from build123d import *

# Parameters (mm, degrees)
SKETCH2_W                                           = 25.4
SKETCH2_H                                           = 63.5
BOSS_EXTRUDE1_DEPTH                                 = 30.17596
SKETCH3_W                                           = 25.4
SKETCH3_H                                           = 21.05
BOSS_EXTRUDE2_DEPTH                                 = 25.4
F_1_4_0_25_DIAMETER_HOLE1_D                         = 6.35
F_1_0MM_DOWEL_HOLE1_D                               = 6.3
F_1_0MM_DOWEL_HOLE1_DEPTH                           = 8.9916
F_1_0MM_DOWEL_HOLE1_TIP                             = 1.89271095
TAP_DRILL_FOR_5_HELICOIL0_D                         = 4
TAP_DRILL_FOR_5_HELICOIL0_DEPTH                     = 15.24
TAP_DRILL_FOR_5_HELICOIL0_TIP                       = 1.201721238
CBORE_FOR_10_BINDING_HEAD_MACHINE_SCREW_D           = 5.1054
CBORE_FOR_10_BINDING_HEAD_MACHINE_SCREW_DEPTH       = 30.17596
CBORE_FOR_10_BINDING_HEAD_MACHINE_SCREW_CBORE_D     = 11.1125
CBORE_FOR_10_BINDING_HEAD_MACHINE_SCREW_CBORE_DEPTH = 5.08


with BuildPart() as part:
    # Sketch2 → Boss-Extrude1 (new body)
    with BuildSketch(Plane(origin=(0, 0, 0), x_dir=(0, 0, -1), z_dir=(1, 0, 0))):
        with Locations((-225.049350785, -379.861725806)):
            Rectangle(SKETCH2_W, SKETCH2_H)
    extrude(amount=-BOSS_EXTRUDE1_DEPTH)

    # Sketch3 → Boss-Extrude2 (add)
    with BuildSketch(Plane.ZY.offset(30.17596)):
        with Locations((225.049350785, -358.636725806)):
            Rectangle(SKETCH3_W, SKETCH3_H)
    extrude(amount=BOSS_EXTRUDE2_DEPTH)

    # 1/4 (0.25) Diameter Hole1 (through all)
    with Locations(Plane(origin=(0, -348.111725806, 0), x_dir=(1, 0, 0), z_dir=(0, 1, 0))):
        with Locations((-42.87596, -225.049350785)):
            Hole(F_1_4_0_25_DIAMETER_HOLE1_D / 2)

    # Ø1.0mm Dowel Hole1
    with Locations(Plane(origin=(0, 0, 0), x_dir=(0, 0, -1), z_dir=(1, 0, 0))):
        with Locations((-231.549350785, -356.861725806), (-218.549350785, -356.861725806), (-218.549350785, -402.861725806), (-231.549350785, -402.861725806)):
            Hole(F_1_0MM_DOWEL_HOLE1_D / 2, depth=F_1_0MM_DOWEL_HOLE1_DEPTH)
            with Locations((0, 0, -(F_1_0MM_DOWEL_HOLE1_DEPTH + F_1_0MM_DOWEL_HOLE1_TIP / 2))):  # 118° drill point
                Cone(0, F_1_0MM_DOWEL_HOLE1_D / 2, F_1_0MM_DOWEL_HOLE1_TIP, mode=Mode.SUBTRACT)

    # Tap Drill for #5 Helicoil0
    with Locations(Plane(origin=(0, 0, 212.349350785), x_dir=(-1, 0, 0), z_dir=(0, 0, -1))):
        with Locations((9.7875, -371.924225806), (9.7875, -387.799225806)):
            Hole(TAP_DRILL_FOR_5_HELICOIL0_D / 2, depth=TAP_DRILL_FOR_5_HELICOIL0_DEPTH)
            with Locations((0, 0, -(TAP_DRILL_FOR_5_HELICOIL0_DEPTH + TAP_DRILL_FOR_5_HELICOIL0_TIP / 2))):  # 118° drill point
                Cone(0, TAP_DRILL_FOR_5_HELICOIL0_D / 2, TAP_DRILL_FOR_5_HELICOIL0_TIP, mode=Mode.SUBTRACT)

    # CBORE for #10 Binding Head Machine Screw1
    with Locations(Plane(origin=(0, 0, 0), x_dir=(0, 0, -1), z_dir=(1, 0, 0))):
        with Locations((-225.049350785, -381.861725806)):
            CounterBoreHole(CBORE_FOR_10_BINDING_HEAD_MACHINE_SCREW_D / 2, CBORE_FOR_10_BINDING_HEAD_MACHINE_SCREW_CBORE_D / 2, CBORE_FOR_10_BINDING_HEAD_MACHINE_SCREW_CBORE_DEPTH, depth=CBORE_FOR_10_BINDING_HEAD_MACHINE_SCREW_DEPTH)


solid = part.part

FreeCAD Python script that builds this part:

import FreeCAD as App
import Part
import Sketcher
Q = App.Units.Quantity


def add_polygon(sketch, points):
    """Adds a closed chain of lines whose ends are joined by coincident constraints."""
    first, n = sketch.GeometryCount, len(points)
    for a, b in zip(points, points[1:] + points[:1]):
        sketch.addGeometry(Part.LineSegment(App.Vector(*a, 0), App.Vector(*b, 0)), False)
    for i in range(n):
        sketch.addConstraint(Sketcher.Constraint("Coincident", first + i, 2, first + (i + 1) % n, 1))

doc = App.newDocument("Part")
body = doc.addObject("PartDesign::Body", "Body")

# Sketch on YZ plane
sketch1 = body.newObject("Sketcher::SketchObject", "Sketch")
sketch1.AttachmentSupport = (doc.getObject("YZ_Plane"), [""])
sketch1.MapMode = "FlatFace"
add_polygon(sketch1, [(-348, 238), (-412, 238), (-412, 212), (-348, 212)])  # lines 0-3
sketch1.addConstraint(Sketcher.Constraint("Horizontal", 0))
sketch1.addConstraint(Sketcher.Constraint("Vertical", 1))
sketch1.addConstraint(Sketcher.Constraint("Horizontal", 2))
sketch1.addConstraint(Sketcher.Constraint("Vertical", 3))
sketch1.addConstraint(Sketcher.Constraint("DistanceY", 1, 2, 1, 1, Q("1 in")))
sketch1.addConstraint(Sketcher.Constraint("DistanceX", 0, 2, 0, 1, Q("2.5 in")))
sketch1.addConstraint(Sketcher.Constraint("DistanceY", -1, 1, 0, 2, Q("237.749351 mm")))
sketch1.addConstraint(Sketcher.Constraint("DistanceX", 0, 2, -1, 1, Q("411.611726 mm")))
pad1 = body.newObject("PartDesign::Pad", "Pad")
pad1.Profile = sketch1
pad1.Length = 30.17596
pad1.Reversed = True

# Sketch on YZ plane
sketch2 = body.newObject("Sketcher::SketchObject", "Sketch001")
sketch2.AttachmentSupport = (doc.getObject("YZ_Plane"), [""])
sketch2.MapMode = "FlatFace"
sketch2.AttachmentOffset = App.Placement(App.Vector(0, 0, -30.17596), App.Rotation())
add_polygon(sketch2, [(-348, 212), (-369, 212), (-369, 238), (-348, 238)])  # lines 0-3
sketch2.addConstraint(Sketcher.Constraint("Horizontal", 0))
sketch2.addConstraint(Sketcher.Constraint("Vertical", 1))
sketch2.addConstraint(Sketcher.Constraint("Horizontal", 2))
sketch2.addConstraint(Sketcher.Constraint("Vertical", 3))
sketch2.addConstraint(Sketcher.Constraint("DistanceY", 1, 1, 1, 2, Q("1 in")))
sketch2.addConstraint(Sketcher.Constraint("DistanceX", 0, 2, 0, 1, Q("21.05 mm")))
sketch2.addConstraint(Sketcher.Constraint("DistanceY", -1, 1, 0, 2, Q("212.349351 mm")))
sketch2.addConstraint(Sketcher.Constraint("DistanceX", 0, 2, -1, 1, Q("369.161726 mm")))
pad2 = body.newObject("PartDesign::Pad", "Pad001")
pad2.Profile = sketch2
pad2.Length = Q("1 in")
pad2.Reversed = True

# Sketch on XZ plane
sketch3 = body.newObject("Sketcher::SketchObject", "Sketch002")
sketch3.AttachmentSupport = (doc.getObject("XZ_Plane"), [""])
sketch3.MapMode = "FlatFace"
sketch3.AttachmentOffset = App.Placement(App.Vector(0, 0, 348.111726), App.Rotation())
sketch3.addGeometry(Part.Circle(App.Vector(-42.9, 225, 0), App.Vector(0, 0, 1), 3.2), False)
sketch3.addConstraint(Sketcher.Constraint("Diameter", 0, Q("0.25 in")))
sketch3.addConstraint(Sketcher.Constraint("DistanceX", 0, 3, -1, 1, Q("42.87596 mm")))
sketch3.addConstraint(Sketcher.Constraint("DistanceY", -1, 1, 0, 3, Q("225.049351 mm")))
doc.recompute()
hole = body.newObject("PartDesign::Hole", "Hole")
hole.Profile = sketch3
hole.ThreadType = "None"
hole.Diameter = Q("0.25 in")
hole.DepthType = "ThroughAll"
hole.Reversed = True

# Sketch on YZ plane
sketch4 = body.newObject("Sketcher::SketchObject", "Sketch003")
sketch4.AttachmentSupport = (doc.getObject("YZ_Plane"), [""])
sketch4.MapMode = "FlatFace"
sketch4.addGeometry(Part.Circle(App.Vector(-356.9, 231.5, 0), App.Vector(0, 0, 1), 3.1), False)
sketch4.addGeometry(Part.Circle(App.Vector(-356.9, 218.5, 0), App.Vector(0, 0, 1), 3.1), False)
sketch4.addGeometry(Part.Circle(App.Vector(-402.9, 218.5, 0), App.Vector(0, 0, 1), 3.1), False)
sketch4.addGeometry(Part.Circle(App.Vector(-402.9, 231.5, 0), App.Vector(0, 0, 1), 3.1), False)
sketch4.addConstraint(Sketcher.Constraint("Equal", 0, 1))
sketch4.addConstraint(Sketcher.Constraint("Equal", 1, 2))
sketch4.addConstraint(Sketcher.Constraint("Equal", 2, 3))
sketch4.addConstraint(Sketcher.Constraint("Horizontal", 1, 3, 2, 3))
sketch4.addConstraint(Sketcher.Constraint("Horizontal", 0, 3, 3, 3))
sketch4.addConstraint(Sketcher.Constraint("Vertical", 0, 3, 1, 3))
sketch4.addConstraint(Sketcher.Constraint("Vertical", 2, 3, 3, 3))
sketch4.addConstraint(Sketcher.Constraint("Diameter", 0, Q("6.3 mm")))
sketch4.addConstraint(Sketcher.Constraint("DistanceY", 1, 3, 0, 3, Q("13 mm")))
sketch4.addConstraint(Sketcher.Constraint("DistanceX", 2, 3, 1, 3, Q("46 mm")))
sketch4.addConstraint(Sketcher.Constraint("DistanceY", -1, 1, 0, 3, Q("231.549351 mm")))
sketch4.addConstraint(Sketcher.Constraint("DistanceX", 0, 3, -1, 1, Q("356.861726 mm")))
doc.recompute()
hole2 = body.newObject("PartDesign::Hole", "Hole001")
hole2.Profile = sketch4
hole2.ThreadType = "None"
hole2.Diameter = 6.3
hole2.DepthType = "Dimension"
hole2.Depth = Q("0.354 in")
hole2.DrillPoint = "Angled"
hole2.DrillPointAngle = 118

# Sketch on XY plane
sketch5 = body.newObject("Sketcher::SketchObject", "Sketch004")
sketch5.AttachmentSupport = (doc.getObject("XY_Plane"), [""])
sketch5.MapMode = "FlatFace"
sketch5.AttachmentOffset = App.Placement(App.Vector(0, 0, 212.349351), App.Rotation())
sketch5.addGeometry(Part.Circle(App.Vector(-9.8, -371.9, 0), App.Vector(0, 0, 1), 2), False)
sketch5.addGeometry(Part.Circle(App.Vector(-9.8, -387.8, 0), App.Vector(0, 0, 1), 2), False)
sketch5.addConstraint(Sketcher.Constraint("Equal", 0, 1))
sketch5.addConstraint(Sketcher.Constraint("Vertical", 0, 3, 1, 3))
sketch5.addConstraint(Sketcher.Constraint("Diameter", 0, Q("4 mm")))
sketch5.addConstraint(Sketcher.Constraint("DistanceY", 1, 3, 0, 3, Q("0.625 in")))
sketch5.addConstraint(Sketcher.Constraint("DistanceX", 0, 3, -1, 1, Q("9.7875 mm")))
sketch5.addConstraint(Sketcher.Constraint("DistanceY", 0, 3, -1, 1, Q("371.924226 mm")))
doc.recompute()
hole3 = body.newObject("PartDesign::Hole", "Hole002")
hole3.Profile = sketch5
hole3.ThreadType = "None"
hole3.Diameter = 4
hole3.DepthType = "Dimension"
hole3.Depth = Q("0.6 in")
hole3.DrillPoint = "Angled"
hole3.DrillPointAngle = 118
hole3.Reversed = True

# Sketch on YZ plane
sketch6 = body.newObject("Sketcher::SketchObject", "Sketch005")
sketch6.AttachmentSupport = (doc.getObject("YZ_Plane"), [""])
sketch6.MapMode = "FlatFace"
sketch6.addGeometry(Part.Circle(App.Vector(-381.9, 225, 0), App.Vector(0, 0, 1), 2.6), False)
sketch6.addConstraint(Sketcher.Constraint("Diameter", 0, Q("0.201 in")))
sketch6.addConstraint(Sketcher.Constraint("DistanceY", -1, 1, 0, 3, Q("225.049351 mm")))
sketch6.addConstraint(Sketcher.Constraint("DistanceX", 0, 3, -1, 1, Q("381.861726 mm")))
doc.recompute()
hole4 = body.newObject("PartDesign::Hole", "Hole003")
hole4.Profile = sketch6
hole4.ThreadType = "None"
hole4.Diameter = Q("0.201 in")
hole4.DepthType = "Dimension"
hole4.Depth = 30.17596
hole4.DrillPoint = "Flat"
hole4.HoleCutType = "Counterbore"
hole4.HoleCutDiameter = Q("0.4375 in")
hole4.HoleCutDepth = Q("0.2 in")

doc.recompute()
